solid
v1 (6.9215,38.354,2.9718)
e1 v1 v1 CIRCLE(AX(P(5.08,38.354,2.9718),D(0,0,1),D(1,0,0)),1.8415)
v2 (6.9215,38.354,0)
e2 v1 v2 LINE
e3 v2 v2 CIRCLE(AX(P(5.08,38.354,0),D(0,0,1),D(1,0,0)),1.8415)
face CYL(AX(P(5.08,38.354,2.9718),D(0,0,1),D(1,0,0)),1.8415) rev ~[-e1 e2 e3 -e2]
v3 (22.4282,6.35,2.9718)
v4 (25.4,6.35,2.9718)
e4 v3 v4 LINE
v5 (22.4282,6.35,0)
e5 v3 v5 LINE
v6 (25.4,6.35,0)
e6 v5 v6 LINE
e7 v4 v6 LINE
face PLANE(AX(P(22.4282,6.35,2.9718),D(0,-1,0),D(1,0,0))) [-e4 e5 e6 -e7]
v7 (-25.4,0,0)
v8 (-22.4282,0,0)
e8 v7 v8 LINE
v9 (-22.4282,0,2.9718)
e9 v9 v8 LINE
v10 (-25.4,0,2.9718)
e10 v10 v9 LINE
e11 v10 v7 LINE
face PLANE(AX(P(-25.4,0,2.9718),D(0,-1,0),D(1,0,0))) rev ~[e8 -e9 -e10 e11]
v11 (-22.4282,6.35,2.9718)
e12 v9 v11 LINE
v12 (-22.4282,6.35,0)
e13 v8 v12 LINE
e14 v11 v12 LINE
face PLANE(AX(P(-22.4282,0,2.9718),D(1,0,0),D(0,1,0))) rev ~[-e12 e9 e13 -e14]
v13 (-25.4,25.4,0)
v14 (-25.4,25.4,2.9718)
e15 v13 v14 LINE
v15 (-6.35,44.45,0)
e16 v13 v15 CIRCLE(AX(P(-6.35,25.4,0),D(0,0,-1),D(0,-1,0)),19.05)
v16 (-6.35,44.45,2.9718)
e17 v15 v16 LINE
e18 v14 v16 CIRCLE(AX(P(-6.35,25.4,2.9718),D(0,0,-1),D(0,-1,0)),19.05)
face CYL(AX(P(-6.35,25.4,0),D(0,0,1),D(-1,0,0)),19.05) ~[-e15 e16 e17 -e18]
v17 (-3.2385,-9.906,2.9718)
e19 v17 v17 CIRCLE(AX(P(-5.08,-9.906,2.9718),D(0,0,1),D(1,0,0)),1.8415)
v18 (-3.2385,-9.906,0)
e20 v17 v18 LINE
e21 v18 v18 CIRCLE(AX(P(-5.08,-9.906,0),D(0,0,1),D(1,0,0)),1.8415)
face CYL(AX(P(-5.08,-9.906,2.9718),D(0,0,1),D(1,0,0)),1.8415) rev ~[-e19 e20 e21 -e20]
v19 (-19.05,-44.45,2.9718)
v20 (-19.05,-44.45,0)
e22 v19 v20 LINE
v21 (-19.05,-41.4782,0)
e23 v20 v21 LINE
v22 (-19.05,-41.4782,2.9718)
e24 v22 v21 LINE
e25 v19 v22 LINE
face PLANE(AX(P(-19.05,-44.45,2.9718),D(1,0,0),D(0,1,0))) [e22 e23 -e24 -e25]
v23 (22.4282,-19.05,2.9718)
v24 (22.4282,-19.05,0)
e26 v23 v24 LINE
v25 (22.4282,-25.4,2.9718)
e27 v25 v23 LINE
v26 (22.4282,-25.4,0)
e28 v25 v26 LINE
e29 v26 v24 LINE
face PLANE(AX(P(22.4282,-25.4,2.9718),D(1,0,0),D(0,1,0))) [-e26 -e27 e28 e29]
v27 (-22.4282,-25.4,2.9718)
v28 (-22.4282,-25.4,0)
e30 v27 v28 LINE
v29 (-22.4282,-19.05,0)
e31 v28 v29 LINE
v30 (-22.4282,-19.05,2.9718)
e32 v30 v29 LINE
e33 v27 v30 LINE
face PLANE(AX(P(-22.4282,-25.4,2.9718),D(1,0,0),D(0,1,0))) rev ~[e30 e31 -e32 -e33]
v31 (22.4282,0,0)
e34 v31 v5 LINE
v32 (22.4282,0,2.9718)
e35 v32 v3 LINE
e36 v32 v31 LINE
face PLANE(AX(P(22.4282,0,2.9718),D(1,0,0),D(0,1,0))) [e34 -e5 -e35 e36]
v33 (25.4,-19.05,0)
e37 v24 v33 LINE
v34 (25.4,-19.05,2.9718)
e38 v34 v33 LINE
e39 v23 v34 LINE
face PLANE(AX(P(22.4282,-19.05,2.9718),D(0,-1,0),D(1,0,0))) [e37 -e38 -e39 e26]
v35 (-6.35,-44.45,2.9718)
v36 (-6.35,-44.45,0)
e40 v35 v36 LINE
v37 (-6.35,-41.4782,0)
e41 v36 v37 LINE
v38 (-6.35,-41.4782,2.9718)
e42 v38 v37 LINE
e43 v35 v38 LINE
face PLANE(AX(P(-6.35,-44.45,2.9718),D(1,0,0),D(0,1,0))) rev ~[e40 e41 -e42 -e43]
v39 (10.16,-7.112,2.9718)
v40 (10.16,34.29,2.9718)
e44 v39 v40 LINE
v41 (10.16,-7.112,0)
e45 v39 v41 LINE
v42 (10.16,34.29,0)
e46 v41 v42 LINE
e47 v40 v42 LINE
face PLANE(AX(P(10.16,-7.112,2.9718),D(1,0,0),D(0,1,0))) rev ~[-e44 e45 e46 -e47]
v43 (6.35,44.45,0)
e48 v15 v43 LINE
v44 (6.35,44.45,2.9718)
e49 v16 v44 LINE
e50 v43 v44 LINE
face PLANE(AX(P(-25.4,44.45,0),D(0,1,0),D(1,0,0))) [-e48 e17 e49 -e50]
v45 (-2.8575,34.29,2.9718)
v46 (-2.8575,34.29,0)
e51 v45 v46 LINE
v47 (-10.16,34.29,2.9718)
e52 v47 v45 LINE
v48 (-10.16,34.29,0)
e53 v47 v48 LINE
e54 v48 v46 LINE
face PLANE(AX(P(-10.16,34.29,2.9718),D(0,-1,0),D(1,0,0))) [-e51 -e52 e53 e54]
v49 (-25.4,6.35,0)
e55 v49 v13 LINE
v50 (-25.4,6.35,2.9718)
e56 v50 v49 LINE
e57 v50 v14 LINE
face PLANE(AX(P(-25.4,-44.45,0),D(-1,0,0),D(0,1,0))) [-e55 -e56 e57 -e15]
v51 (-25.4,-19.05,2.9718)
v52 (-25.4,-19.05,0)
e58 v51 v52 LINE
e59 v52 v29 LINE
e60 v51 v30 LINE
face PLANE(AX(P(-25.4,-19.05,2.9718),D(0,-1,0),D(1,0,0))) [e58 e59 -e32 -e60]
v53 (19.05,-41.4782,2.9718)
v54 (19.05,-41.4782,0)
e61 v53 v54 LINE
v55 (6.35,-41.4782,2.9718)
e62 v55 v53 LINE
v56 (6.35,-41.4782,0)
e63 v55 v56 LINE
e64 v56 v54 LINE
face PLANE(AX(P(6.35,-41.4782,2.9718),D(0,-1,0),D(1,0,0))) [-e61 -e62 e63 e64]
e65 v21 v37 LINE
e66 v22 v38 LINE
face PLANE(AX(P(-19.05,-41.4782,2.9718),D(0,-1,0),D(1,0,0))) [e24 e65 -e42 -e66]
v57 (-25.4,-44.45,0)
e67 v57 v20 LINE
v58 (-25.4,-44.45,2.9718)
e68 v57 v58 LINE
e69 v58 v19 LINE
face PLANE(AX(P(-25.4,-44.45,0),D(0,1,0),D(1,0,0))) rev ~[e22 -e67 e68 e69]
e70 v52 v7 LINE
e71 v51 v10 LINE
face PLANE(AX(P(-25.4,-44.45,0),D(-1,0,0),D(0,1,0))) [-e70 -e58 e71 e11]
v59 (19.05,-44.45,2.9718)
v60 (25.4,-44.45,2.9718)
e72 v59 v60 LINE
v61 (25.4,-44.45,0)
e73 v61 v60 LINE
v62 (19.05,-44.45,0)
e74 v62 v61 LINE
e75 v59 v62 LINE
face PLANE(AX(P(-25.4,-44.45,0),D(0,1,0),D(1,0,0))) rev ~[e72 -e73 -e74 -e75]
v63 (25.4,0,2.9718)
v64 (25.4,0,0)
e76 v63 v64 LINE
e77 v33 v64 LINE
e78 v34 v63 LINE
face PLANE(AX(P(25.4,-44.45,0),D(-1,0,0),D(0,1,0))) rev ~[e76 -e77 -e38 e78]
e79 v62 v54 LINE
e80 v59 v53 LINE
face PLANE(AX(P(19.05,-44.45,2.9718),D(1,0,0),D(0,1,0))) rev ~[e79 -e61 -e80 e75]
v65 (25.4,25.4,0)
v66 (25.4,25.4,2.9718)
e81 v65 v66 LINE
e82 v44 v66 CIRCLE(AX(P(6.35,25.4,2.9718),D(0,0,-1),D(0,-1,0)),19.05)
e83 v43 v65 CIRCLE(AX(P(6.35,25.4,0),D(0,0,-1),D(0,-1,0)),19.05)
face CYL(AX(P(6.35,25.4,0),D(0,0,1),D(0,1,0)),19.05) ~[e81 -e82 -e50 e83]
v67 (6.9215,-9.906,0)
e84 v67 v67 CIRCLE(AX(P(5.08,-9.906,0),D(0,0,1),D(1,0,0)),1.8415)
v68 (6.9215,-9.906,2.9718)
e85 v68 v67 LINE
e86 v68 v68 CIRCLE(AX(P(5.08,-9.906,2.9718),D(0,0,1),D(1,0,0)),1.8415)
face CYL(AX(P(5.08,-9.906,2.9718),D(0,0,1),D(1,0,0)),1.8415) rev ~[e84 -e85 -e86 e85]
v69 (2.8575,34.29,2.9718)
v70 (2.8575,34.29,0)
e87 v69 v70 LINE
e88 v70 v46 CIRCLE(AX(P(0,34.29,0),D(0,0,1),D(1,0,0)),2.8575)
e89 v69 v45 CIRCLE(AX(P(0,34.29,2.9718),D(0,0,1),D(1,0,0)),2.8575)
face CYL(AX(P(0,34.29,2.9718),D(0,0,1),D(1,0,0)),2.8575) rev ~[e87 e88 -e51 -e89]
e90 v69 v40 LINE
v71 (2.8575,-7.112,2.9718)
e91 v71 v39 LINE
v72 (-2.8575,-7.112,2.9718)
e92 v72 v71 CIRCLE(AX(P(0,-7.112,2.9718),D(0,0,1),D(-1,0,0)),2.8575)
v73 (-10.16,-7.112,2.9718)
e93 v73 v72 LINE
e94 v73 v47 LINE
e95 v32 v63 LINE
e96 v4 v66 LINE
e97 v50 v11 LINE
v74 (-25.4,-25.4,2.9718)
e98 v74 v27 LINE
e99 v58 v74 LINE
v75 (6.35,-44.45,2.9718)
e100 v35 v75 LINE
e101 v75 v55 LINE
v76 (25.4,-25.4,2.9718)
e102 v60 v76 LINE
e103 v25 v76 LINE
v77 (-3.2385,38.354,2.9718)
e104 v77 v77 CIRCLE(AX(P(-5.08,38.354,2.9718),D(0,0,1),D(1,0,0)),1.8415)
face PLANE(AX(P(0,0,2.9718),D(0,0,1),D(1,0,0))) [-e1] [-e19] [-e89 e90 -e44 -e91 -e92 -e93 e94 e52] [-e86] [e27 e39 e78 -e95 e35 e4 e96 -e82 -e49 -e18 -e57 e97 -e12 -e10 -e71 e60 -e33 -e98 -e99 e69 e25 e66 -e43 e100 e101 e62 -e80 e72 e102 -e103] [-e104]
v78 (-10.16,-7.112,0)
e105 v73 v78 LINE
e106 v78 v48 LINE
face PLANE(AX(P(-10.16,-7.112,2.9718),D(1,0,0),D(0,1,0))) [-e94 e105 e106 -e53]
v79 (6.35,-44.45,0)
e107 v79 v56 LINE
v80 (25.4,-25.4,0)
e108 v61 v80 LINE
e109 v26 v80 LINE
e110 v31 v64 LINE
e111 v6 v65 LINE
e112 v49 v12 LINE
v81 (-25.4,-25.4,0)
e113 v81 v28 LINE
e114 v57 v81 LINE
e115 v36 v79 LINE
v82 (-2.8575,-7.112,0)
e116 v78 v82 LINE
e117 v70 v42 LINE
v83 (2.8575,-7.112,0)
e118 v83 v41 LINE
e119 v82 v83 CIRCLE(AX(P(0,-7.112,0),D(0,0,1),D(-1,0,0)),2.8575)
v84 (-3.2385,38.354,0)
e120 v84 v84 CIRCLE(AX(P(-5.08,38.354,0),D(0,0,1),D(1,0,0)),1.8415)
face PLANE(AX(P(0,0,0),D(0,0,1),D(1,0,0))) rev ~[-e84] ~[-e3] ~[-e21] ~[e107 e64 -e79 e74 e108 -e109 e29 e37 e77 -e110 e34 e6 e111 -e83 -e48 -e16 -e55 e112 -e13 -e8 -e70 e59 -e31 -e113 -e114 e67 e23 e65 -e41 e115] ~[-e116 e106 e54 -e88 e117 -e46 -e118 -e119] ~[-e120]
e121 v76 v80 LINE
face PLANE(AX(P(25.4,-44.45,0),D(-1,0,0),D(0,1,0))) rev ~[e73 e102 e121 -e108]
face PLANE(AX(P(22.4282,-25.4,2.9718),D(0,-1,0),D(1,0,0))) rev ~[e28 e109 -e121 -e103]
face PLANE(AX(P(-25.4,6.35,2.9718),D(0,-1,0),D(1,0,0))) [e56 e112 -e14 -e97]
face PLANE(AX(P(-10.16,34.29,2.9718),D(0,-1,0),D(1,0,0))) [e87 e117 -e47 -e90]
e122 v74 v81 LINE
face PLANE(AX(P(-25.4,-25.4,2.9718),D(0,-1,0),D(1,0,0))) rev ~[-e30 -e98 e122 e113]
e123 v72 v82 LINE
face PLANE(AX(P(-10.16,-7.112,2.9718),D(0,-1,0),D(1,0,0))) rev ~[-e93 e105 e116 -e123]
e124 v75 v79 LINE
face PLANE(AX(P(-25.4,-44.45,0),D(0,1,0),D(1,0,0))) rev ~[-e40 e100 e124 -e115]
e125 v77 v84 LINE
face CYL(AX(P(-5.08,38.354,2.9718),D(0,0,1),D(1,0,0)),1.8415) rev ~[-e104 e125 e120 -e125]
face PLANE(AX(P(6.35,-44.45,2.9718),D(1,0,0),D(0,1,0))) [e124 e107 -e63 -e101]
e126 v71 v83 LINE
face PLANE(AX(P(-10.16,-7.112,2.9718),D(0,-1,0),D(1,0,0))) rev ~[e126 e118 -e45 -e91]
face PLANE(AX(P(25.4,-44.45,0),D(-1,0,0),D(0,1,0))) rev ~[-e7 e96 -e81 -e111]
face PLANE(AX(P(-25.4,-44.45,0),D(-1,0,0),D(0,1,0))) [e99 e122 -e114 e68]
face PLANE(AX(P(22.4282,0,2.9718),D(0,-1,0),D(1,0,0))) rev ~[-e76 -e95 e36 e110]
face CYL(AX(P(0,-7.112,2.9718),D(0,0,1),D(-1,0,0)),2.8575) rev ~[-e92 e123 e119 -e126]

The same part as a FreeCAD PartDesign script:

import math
import FreeCAD as App
import Part
import Sketcher

V = App.Vector
Q = App.Units.Quantity


def edges_at(feature, points):
    """Names of the edges that pass closest to the given points."""
    edges = feature.Shape.Edges
    near = lambda p: min(range(len(edges)), key=lambda i: edges[i].distToShape(Part.Vertex(*p))[0])
    return sorted({f"Edge{near(p) + 1}" for p in points})

doc = App.newDocument("Part")
body = doc.addObject("PartDesign::Body", "Body")

sketch1 = doc.addObject("Sketcher::SketchObject", "Sketch")
body.addObject(sketch1)
sketch1.AttachmentSupport = (doc.XY_Plane, [""])
sketch1.MapMode = "FlatFace"
sketch1.addGeometry([
    Part.LineSegment(V(-25, 44, 0), V(-25, -44, 0)),
    Part.LineSegment(V(-25, -44, 0), V(25, -44, 0)),
    Part.LineSegment(V(25, -44, 0), V(25, 44, 0)),
    Part.LineSegment(V(25, 44, 0), V(-25, 44, 0)),
], False)
sketch1.addConstraint([
    Sketcher.Constraint("Coincident", 0, 2, 1, 1),
    Sketcher.Constraint("Coincident", 1, 2, 2, 1),
    Sketcher.Constraint("Coincident", 2, 2, 3, 1),
    Sketcher.Constraint("Coincident", 3, 2, 0, 1),
    Sketcher.Constraint("Vertical", 0),
    Sketcher.Constraint("Horizontal", 1),
    Sketcher.Constraint("Vertical", 2),
    Sketcher.Constraint("Horizontal", 3),
    Sketcher.Constraint("Symmetric", 0, 2, 2, 2, -1, 1),
    Sketcher.Constraint("DistanceX", 1, 1, 1, 2, Q("2 in")),
    Sketcher.Constraint("DistanceY", 0, 2, 0, 1, Q("3.5 in")),
])
pad1 = doc.addObject("PartDesign::Pad", "Pad")
body.addObject(pad1)
pad1.Profile = sketch1
pad1.Length = Q("0.117 in")

sketch2 = doc.addObject("Sketcher::SketchObject", "Sketch001")
body.addObject(sketch2)
sketch2.AttachmentSupport = (doc.XY_Plane, [""])
sketch2.MapMode = "FlatFace"
sketch2.AttachmentOffset = App.Placement(V(0, 0, 0.117 * 25.4), App.Rotation())
sketch2.addGeometry([
    Part.LineSegment(V(-10, 34, 0), V(-10, -7, 0)),
    Part.LineSegment(V(-10, -7, 0), V(10, -7, 0)),
    Part.LineSegment(V(10, -7, 0), V(10, 34, 0)),
    Part.LineSegment(V(10, 34, 0), V(-10, 34, 0)),
], False)
sketch2.addConstraint([
    Sketcher.Constraint("Coincident", 0, 2, 1, 1),
    Sketcher.Constraint("Coincident", 1, 2, 2, 1),
    Sketcher.Constraint("Coincident", 2, 2, 3, 1),
    Sketcher.Constraint("Coincident", 3, 2, 0, 1),
    Sketcher.Constraint("Vertical", 0),
    Sketcher.Constraint("Horizontal", 1),
    Sketcher.Constraint("Vertical", 2),
    Sketcher.Constraint("Horizontal", 3),
    Sketcher.Constraint("DistanceX", 1, 1, 1, 2, Q("0.8 in")),
    Sketcher.Constraint("DistanceY", 0, 2, 0, 1, Q("1.63 in")),
    Sketcher.Constraint("DistanceX", 0, 2, -1, 1, Q("0.4 in")),
    Sketcher.Constraint("DistanceY", 0, 2, -1, 1, Q("0.28 in")),
])
pocket1 = doc.addObject("PartDesign::Pocket", "Pocket")
body.addObject(pocket1)
pocket1.Profile = sketch2
pocket1.Length = Q("1 in")

sketch3 = doc.addObject("Sketcher::SketchObject", "Sketch002")
body.addObject(sketch3)
sketch3.AttachmentSupport = (doc.XY_Plane, [""])
sketch3.MapMode = "FlatFace"
sketch3.AttachmentOffset = App.Placement(V(0, 0, 0.117 * 25.4), App.Rotation())
sketch3.addGeometry([
    Part.LineSegment(V(-19.1, -41.5, 0), V(-19.1, -44.5, 0)),
    Part.LineSegment(V(-19.1, -44.5, 0), V(-6.3, -44.5, 0)),
    Part.LineSegment(V(-6.3, -44.5, 0), V(-6.3, -41.5, 0)),
    Part.LineSegment(V(-6.3, -41.5, 0), V(-19.1, -41.5, 0)),
    Part.LineSegment(V(6.3, -41.5, 0), V(6.3, -44.5, 0)),
    Part.LineSegment(V(6.3, -44.5, 0), V(19.1, -44.5, 0)),
    Part.LineSegment(V(19.1, -44.5, 0), V(19.1, -41.5, 0)),
    Part.LineSegment(V(19.1, -41.5, 0), V(6.3, -41.5, 0)),
], False)
sketch3.addConstraint([
    Sketcher.Constraint("Coincident", 0, 2, 1, 1),
    Sketcher.Constraint("Coincident", 1, 2, 2, 1),
    Sketcher.Constraint("Coincident", 2, 2, 3, 1),
    Sketcher.Constraint("Coincident", 3, 2, 0, 1),
    Sketcher.Constraint("Coincident", 4, 2, 5, 1),
    Sketcher.Constraint("Coincident", 5, 2, 6, 1),
    Sketcher.Constraint("Coincident", 6, 2, 7, 1),
    Sketcher.Constraint("Coincident", 7, 2, 4, 1),
    Sketcher.Constraint("Vertical", 0),
    Sketcher.Constraint("Horizontal", 1),
    Sketcher.Constraint("Vertical", 2),
    Sketcher.Constraint("Horizontal", 3),
    Sketcher.Constraint("Vertical", 4),
    Sketcher.Constraint("Horizontal", 5),
    Sketcher.Constraint("Vertical", 6),
    Sketcher.Constraint("Horizontal", 7),
    Sketcher.Constraint("Symmetric", 1, 2, 4, 2, -2),
    Sketcher.Constraint("Symmetric", 3, 2, 6, 2, -2),
    Sketcher.Constraint("DistanceX", 1, 1, 1, 2, Q("0.5 in")),
    Sketcher.Constraint("DistanceX", 0, 2, 4, 2, Q("1 in")),
    Sketcher.Constraint("DistanceY", 0, 2, 0, 1, Q("0.117 in")),
    Sketcher.Constraint("DistanceY", 0, 2, -1, 1, Q("1.75 in")),
])
pocket2 = doc.addObject("PartDesign::Pocket", "Pocket001")
body.addObject(pocket2)
pocket2.Profile = sketch3
pocket2.Length = Q("1 in")

sketch4 = doc.addObject("Sketcher::SketchObject", "Sketch003")
body.addObject(sketch4)
sketch4.AttachmentSupport = (doc.XY_Plane, [""])
sketch4.MapMode = "FlatFace"
sketch4.AttachmentOffset = App.Placement(V(0, 0, 0.117 * 25.4), App.Rotation())
sketch4.addGeometry([
    Part.LineSegment(V(22.4, 6.3, 0), V(22.4, 0, 0)),
    Part.LineSegment(V(22.4, 0, 0), V(25.4, 0, 0)),
    Part.LineSegment(V(25.4, 0, 0), V(25.4, 6.3, 0)),
    Part.LineSegment(V(25.4, 6.3, 0), V(22.4, 6.3, 0)),
    Part.LineSegment(V(-25.4, 6.3, 0), V(-25.4, 0, 0)),
    Part.LineSegment(V(-25.4, 0, 0), V(-22.4, 0, 0)),
    Part.LineSegment(V(-22.4, 0, 0), V(-22.4, 6.3, 0)),
    Part.LineSegment(V(-22.4, 6.3, 0), V(-25.4, 6.3, 0)),
    Part.LineSegment(V(-25.4, -19.1, 0), V(-25.4, -25.4, 0)),
    Part.LineSegment(V(-25.4, -25.4, 0), V(-22.4, -25.4, 0)),
    Part.LineSegment(V(-22.4, -25.4, 0), V(-22.4, -19.1, 0)),
    Part.LineSegment(V(-22.4, -19.1, 0), V(-25.4, -19.1, 0)),
    Part.LineSegment(V(22.4, -19.1, 0), V(22.4, -25.4, 0)),
    Part.LineSegment(V(22.4, -25.4, 0), V(25.4, -25.4, 0)),
    Part.LineSegment(V(25.4, -25.4, 0), V(25.4, -19.1, 0)),
    Part.LineSegment(V(25.4, -19.1, 0), V(22.4, -19.1, 0)),
], False)
sketch4.addConstraint([
    Sketcher.Constraint("Coincident", 0, 2, 1, 1),
    Sketcher.Constraint("Coincident", 1, 2, 2, 1),
    Sketcher.Constraint("Coincident", 2, 2, 3, 1),
    Sketcher.Constraint("Coincident", 3, 2, 0, 1),
    Sketcher.Constraint("Coincident", 4, 2, 5, 1),
    Sketcher.Constraint("Coincident", 5, 2, 6, 1),
    Sketcher.Constraint("Coincident", 6, 2, 7, 1),
    Sketcher.Constraint("Coincident", 7, 2, 4, 1),
    Sketcher.Constraint("Coincident", 8, 2, 9, 1),
    Sketcher.Constraint("Coincident", 9, 2, 10, 1),
    Sketcher.Constraint("Coincident", 10, 2, 11, 1),
    Sketcher.Constraint("Coincident", 11, 2, 8, 1),
    Sketcher.Constraint("Coincident", 12, 2, 13, 1),
    Sketcher.Constraint("Coincident", 13, 2, 14, 1),
    Sketcher.Constraint("Coincident", 14, 2, 15, 1),
    Sketcher.Constraint("Coincident", 15, 2, 12, 1),
    Sketcher.Constraint("Vertical", 0),
    Sketcher.Constraint("Horizontal", 1),
    Sketcher.Constraint("Vertical", 2),
    Sketcher.Constraint("Horizontal", 3),
    Sketcher.Constraint("Vertical", 4),
    Sketcher.Constraint("Horizontal", 5),
    Sketcher.Constraint("Vertical", 6),
    Sketcher.Constraint("Horizontal", 7),
    Sketcher.Constraint("Vertical", 8),
    Sketcher.Constraint("Horizontal", 9),
    Sketcher.Constraint("Vertical", 10),
    Sketcher.Constraint("Horizontal", 11),
    Sketcher.Constraint("Vertical", 12),
    Sketcher.Constraint("Horizontal", 13),
    Sketcher.Constraint("Vertical", 14),
    Sketcher.Constraint("Horizontal", 15),
    Sketcher.Constraint("Symmetric", 1, 2, 4, 2, -1, 1),
    Sketcher.Constraint("Symmetric", 0, 2, 5, 2, -2),
    Sketcher.Constraint("Symmetric", 9, 2, 12, 2, -2),
    Sketcher.Constraint("Symmetric", 11, 2, 14, 2, -2),
    Sketcher.Constraint("Horizontal", 3, 2, 6, 2),
    Sketcher.Constraint("Vertical", 7, 2, 8, 2),
    Sketcher.Constraint("Vertical", 6, 2, 9, 2),
    Sketcher.Constraint("Equal", 6, 8),
    Sketcher.Constraint("DistanceX", -1, 1, 1, 2, Q("1 in")),
    Sketcher.Constraint("DistanceY", 8, 2, -1, 1, Q("1 in")),
    Sketcher.Constraint("DistanceY", 0, 2, 0, 1, Q("0.25 in")),
    Sketcher.Constraint("DistanceX", 1, 1, 1, 2, Q("0.117 in")),
])
pocket3 = doc.addObject("PartDesign::Pocket", "Pocket002")
body.addObject(pocket3)
pocket3.Profile = sketch4
pocket3.Length = Q("1 in")

sketch5 = doc.addObject("Sketcher::SketchObject", "Sketch004")
body.addObject(sketch5)
sketch5.AttachmentSupport = (doc.XY_Plane, [""])
sketch5.MapMode = "FlatFace"
sketch5.AttachmentOffset = App.Placement(V(0, 0, 0.117 * 25.4), App.Rotation())
sketch5.addGeometry([
    Part.Circle(V(-5.1, 38.4, 0), V(0, 0, 1), 1.8),
    Part.Circle(V(5.1, 38.4, 0), V(0, 0, 1), 1.8),
    Part.Circle(V(-5.1, -9.9, 0), V(0, 0, 1), 1.8),
    Part.Circle(V(5.1, -9.9, 0), V(0, 0, 1), 1.8),
], False)
sketch5.addConstraint([
    Sketcher.Constraint("Equal", 0, 1),
    Sketcher.Constraint("Equal", 1, 2),
    Sketcher.Constraint("Equal", 2, 3),
    Sketcher.Constraint("Symmetric", 0, 3, 1, 3, -2),
    Sketcher.Constraint("Symmetric", 2, 3, 3, 3, -2),
    Sketcher.Constraint("Vertical", 0, 3, 2, 3),
    Sketcher.Constraint("Diameter", 0, Q("0.145 in")),
    Sketcher.Constraint("DistanceX", 0, 3, -1, 1, Q("0.2 in")),
    Sketcher.Constraint("DistanceY", 2, 3, 0, 3, Q("1.9 in")),
    Sketcher.Constraint("DistanceY", -1, 1, 0, 3, Q("1.51 in")),
])
pocket4 = doc.addObject("PartDesign::Pocket", "Pocket003")
body.addObject(pocket4)
pocket4.Profile = sketch5
pocket4.Length = Q("1 in")

sketch6 = doc.addObject("Sketcher::SketchObject", "Sketch005")
body.addObject(sketch6)
sketch6.AttachmentSupport = (doc.XY_Plane, [""])
sketch6.MapMode = "FlatFace"
sketch6.AttachmentOffset = App.Placement(V(0, 0, 0.117 * 25.4), App.Rotation())
sketch6.addGeometry([
    Part.ArcOfCircle(Part.Circle(V(0, 34.3, 0), V(0, 0, 1), 2.9), math.radians(0), math.radians(180)),
    Part.LineSegment(V(-2.9, 34.3, 0), V(2.9, 34.3, 0)),
    Part.ArcOfCircle(Part.Circle(V(0, -7.1, 0), V(0, 0, 1), 2.9), math.radians(180), math.radians(360)),
    Part.LineSegment(V(2.9, -7.1, 0), V(-2.9, -7.1, 0)),
], False)
sketch6.addConstraint([
    Sketcher.Constraint("Coincident", 0, 1, 1, 2),
    Sketcher.Constraint("Coincident", 1, 1, 0, 2),
    Sketcher.Constraint("Coincident", 2, 1, 3, 2),
    Sketcher.Constraint("Coincident", 3, 1, 2, 2),
    Sketcher.Constraint("Horizontal", 1),
    Sketcher.Constraint("Horizontal", 3),
    Sketcher.Constraint("Equal", 0, 2),
    Sketcher.Constraint("PointOnObject", 0, 3, -2),
    Sketcher.Constraint("PointOnObject", 2, 3, -2),
    Sketcher.Constraint("Radius", 0, Q("0.1125 in")),
    Sketcher.Constraint("DistanceY", -1, 1, 0, 3, Q("1.35 in")),
    Sketcher.Constraint("DistanceY", 2, 3, -1, 1, Q("0.28 in")),
    Sketcher.Constraint("DistanceY", -1, 1, 0, 1, Q("1.35 in")),
    Sketcher.Constraint("DistanceY", 2, 1, -1, 1, Q("0.28 in")),
])
pocket5 = doc.addObject("PartDesign::Pocket", "Pocket004")
body.addObject(pocket5)
pocket5.Profile = sketch6
pocket5.Length = Q("1 in")
doc.recompute()

fillet = doc.addObject("PartDesign::Fillet", "Fillet")
body.addObject(fillet)
fillet.Base = (pocket5, edges_at(pocket5, [(25.4, 44.45, 1.486), (-25.4, 44.45, 1.486)]))
fillet.Radius = Q("0.75 in")

doc.recompute()
